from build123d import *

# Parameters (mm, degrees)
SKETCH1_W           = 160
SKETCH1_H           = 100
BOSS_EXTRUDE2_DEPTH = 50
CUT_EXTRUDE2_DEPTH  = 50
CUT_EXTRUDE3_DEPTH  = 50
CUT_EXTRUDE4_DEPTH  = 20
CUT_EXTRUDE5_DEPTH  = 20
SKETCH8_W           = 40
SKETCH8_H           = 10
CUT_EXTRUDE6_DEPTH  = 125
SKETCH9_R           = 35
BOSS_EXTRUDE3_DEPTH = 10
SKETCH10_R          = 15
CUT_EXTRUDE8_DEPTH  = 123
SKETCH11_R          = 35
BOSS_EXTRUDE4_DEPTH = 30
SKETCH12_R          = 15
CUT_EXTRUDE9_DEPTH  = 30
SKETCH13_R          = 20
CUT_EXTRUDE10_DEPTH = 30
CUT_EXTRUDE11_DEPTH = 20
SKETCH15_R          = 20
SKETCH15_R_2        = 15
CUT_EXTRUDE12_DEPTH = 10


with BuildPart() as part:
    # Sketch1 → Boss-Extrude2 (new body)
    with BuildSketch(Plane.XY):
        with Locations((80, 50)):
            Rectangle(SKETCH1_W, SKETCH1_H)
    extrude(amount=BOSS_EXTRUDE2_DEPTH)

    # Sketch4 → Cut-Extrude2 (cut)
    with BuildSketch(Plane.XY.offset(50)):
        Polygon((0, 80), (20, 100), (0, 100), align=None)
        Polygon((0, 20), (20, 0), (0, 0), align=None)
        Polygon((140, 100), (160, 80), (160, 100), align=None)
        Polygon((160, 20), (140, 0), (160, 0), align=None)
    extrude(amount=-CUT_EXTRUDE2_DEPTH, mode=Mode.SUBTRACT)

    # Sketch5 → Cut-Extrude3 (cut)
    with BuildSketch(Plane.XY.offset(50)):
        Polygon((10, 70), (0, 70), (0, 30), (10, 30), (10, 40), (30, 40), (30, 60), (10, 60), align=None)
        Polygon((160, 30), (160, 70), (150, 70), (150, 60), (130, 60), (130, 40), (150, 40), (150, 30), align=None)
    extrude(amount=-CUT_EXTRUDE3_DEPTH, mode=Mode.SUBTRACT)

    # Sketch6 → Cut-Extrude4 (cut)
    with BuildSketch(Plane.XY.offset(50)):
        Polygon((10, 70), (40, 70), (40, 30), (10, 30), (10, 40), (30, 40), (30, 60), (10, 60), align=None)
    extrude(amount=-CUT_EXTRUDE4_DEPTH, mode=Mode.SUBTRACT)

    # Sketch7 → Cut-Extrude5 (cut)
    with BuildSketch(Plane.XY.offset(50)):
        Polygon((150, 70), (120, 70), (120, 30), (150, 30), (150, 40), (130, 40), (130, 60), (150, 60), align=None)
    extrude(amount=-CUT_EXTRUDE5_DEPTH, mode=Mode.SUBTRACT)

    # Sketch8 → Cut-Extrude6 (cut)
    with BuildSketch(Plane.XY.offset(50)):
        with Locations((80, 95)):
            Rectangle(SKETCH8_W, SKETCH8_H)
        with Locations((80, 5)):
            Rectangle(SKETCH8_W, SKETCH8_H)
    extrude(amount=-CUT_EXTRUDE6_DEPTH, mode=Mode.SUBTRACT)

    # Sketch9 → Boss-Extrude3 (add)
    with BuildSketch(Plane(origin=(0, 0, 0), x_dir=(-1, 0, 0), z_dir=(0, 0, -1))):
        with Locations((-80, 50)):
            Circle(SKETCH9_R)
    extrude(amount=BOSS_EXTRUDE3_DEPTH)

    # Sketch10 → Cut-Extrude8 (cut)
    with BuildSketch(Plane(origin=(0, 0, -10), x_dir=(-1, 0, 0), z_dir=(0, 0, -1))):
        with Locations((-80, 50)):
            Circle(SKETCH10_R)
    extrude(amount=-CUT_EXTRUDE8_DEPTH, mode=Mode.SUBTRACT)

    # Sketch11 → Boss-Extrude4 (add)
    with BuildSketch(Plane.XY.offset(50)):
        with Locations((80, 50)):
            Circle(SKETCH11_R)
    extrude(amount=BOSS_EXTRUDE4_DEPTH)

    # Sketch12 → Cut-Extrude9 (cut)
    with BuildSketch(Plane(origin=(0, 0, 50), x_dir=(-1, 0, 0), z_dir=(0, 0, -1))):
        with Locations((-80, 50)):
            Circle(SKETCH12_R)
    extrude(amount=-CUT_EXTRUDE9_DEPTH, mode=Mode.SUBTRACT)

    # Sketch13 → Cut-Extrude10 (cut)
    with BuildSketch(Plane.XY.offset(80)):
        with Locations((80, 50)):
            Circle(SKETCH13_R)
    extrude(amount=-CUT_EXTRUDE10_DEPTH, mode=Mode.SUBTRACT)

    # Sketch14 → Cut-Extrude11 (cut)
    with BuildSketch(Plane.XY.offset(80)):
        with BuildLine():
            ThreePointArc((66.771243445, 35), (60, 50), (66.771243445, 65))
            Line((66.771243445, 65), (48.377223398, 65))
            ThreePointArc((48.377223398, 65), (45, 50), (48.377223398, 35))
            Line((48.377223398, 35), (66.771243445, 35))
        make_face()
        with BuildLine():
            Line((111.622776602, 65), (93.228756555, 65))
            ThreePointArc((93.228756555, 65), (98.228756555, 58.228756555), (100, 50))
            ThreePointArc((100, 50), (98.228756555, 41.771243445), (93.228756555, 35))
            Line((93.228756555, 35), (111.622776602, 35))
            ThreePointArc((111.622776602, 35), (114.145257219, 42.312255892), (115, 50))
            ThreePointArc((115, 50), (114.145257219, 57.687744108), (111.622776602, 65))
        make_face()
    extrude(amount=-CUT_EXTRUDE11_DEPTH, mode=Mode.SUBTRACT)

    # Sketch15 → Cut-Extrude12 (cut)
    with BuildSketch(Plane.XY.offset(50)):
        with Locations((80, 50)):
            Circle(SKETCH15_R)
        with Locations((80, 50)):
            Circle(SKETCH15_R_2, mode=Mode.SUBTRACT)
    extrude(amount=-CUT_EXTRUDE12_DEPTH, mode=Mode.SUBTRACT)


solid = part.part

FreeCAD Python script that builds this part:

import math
import FreeCAD as App
import Part
import Sketcher

V = App.Vector


def add_polygon(sketch, points):
    """Adds a closed chain of lines whose ends are joined by coincident constraints."""
    first, n = sketch.GeometryCount, len(points)
    for a, b in zip(points, points[1:] + points[:1]):
        sketch.addGeometry(Part.LineSegment(App.Vector(*a, 0), App.Vector(*b, 0)), False)
    for i in range(n):
        sketch.addConstraint(Sketcher.Constraint("Coincident", first + i, 2, first + (i + 1) % n, 1))

doc = App.newDocument("Part")
body = doc.addObject("PartDesign::Body", "Body")

sketch1 = body.newObject("Sketcher::SketchObject", "Sketch")
sketch1.AttachmentSupport = (doc.getObject("XY_Plane"), [""])
sketch1.MapMode = "FlatFace"
add_polygon(sketch1, [(0, 100), (0, 0), (160, 0), (160, 100)])
sketch1.addConstraint(Sketcher.Constraint("Vertical", 0))
sketch1.addConstraint(Sketcher.Constraint("Horizontal", 1))
sketch1.addConstraint(Sketcher.Constraint("Vertical", 2))
sketch1.addConstraint(Sketcher.Constraint("Horizontal", 3))
sketch1.addConstraint(Sketcher.Constraint("Coincident", 0, 2, -1, 1))
sketch1.addConstraint(Sketcher.Constraint("DistanceX", 1, 1, 1, 2, 160.0))
sketch1.addConstraint(Sketcher.Constraint("DistanceY", 0, 2, 0, 1, 100.0))
pad1 = body.newObject("PartDesign::Pad", "Pad")
pad1.Profile = sketch1
pad1.Length = 50

sketch2 = body.newObject("Sketcher::SketchObject", "Sketch001")
sketch2.AttachmentSupport = (doc.getObject("XY_Plane"), [""])
sketch2.MapMode = "FlatFace"
sketch2.AttachmentOffset = App.Placement(V(0, 0, 50), App.Rotation())
add_polygon(sketch2, [(0, 80), (20, 100), (0, 100)])
add_polygon(sketch2, [(20, 0), (0, 20), (0, 0)])
add_polygon(sketch2, [(140, 100), (160, 80), (160, 100)])
add_polygon(sketch2, [(160, 20), (140, 0), (160, 0)])
sketch2.addConstraint(Sketcher.Constraint("Horizontal", 1))
sketch2.addConstraint(Sketcher.Constraint("Vertical", 2))
sketch2.addConstraint(Sketcher.Constraint("Vertical", 4))
sketch2.addConstraint(Sketcher.Constraint("Horizontal", 5))
sketch2.addConstraint(Sketcher.Constraint("Vertical", 7))
sketch2.addConstraint(Sketcher.Constraint("Horizontal", 8))
sketch2.addConstraint(Sketcher.Constraint("Horizontal", 10))
sketch2.addConstraint(Sketcher.Constraint("Vertical", 11))
sketch2.addConstraint(Sketcher.Constraint("Coincident", 4, 2, -1, 1))
sketch2.addConstraint(Sketcher.Constraint("PointOnObject", 1, 2, -2))
sketch2.addConstraint(Sketcher.Constraint("PointOnObject", 9, 2, -1))
sketch2.addConstraint(Sketcher.Constraint("Perpendicular", 0, 3))
sketch2.addConstraint(Sketcher.Constraint("Parallel", 3, 6))
sketch2.addConstraint(Sketcher.Constraint("Perpendicular", 6, 9))
sketch2.addConstraint(Sketcher.Constraint("Horizontal", 2, 2, 6, 2))
sketch2.addConstraint(Sketcher.Constraint("Horizontal", 1, 2, 7, 2))
sketch2.addConstraint(Sketcher.Constraint("Horizontal", 3, 2, 11, 2))
sketch2.addConstraint(Sketcher.Constraint("Vertical", 0, 2, 5, 2))
sketch2.addConstraint(Sketcher.Constraint("Vertical", 8, 2, 9, 2))
sketch2.addConstraint(Sketcher.Constraint("Vertical", 7, 2, 10, 2))
sketch2.addConstraint(Sketcher.Constraint("DistanceX", 1, 2, 1, 1, 20.0))
sketch2.addConstraint(Sketcher.Constraint("DistanceY", -1, 1, 0, 2, 100.0))
sketch2.addConstraint(Sketcher.Constraint("DistanceX", -1, 1, 6, 2, 160.0))
pocket1 = body.newObject("PartDesign::Pocket", "Pocket")
pocket1.Profile = sketch2
pocket1.Length = 50

sketch3 = body.newObject("Sketcher::SketchObject", "Sketch002")
sketch3.AttachmentSupport = (doc.getObject("XY_Plane"), [""])
sketch3.MapMode = "FlatFace"
sketch3.AttachmentOffset = App.Placement(V(0, 0, 50), App.Rotation())
add_polygon(sketch3, [(10, 70), (0, 70), (0, 30), (10, 30), (10, 40), (30, 40), (30, 60), (10, 60)])
add_polygon(sketch3, [(160, 30), (160, 70), (150, 70), (150, 60), (130, 60), (130, 40), (150, 40), (150, 30)])
sketch3.addConstraint(Sketcher.Constraint("Horizontal", 0))
sketch3.addConstraint(Sketcher.Constraint("Vertical", 1))
sketch3.addConstraint(Sketcher.Constraint("Horizontal", 2))
sketch3.addConstraint(Sketcher.Constraint("Vertical", 3))
sketch3.addConstraint(Sketcher.Constraint("Horizontal", 4))
sketch3.addConstraint(Sketcher.Constraint("Vertical", 5))
sketch3.addConstraint(Sketcher.Constraint("Horizontal", 6))
sketch3.addConstraint(Sketcher.Constraint("Vertical", 7))
sketch3.addConstraint(Sketcher.Constraint("Vertical", 8))
sketch3.addConstraint(Sketcher.Constraint("Horizontal", 9))
sketch3.addConstraint(Sketcher.Constraint("Vertical", 10))
sketch3.addConstraint(Sketcher.Constraint("Horizontal", 11))
sketch3.addConstraint(Sketcher.Constraint("Vertical", 12))
sketch3.addConstraint(Sketcher.Constraint("Horizontal", 13))
sketch3.addConstraint(Sketcher.Constraint("Vertical", 14))
sketch3.addConstraint(Sketcher.Constraint("Horizontal", 15))
sketch3.addConstraint(Sketcher.Constraint("PointOnObject", 0, 2, -2))
sketch3.addConstraint(Sketcher.Constraint("Horizontal", 7, 2, 8, 2))
sketch3.addConstraint(Sketcher.Constraint("Horizontal", 6, 2, 10, 2))
sketch3.addConstraint(Sketcher.Constraint("Horizontal", 4, 2, 12, 2))
sketch3.addConstraint(Sketcher.Constraint("Horizontal", 2, 2, 14, 2))
sketch3.addConstraint(Sketcher.Constraint("Vertical", 3, 2, 6, 2))
sketch3.addConstraint(Sketcher.Constraint("Vertical", 10, 2, 13, 2))
sketch3.addConstraint(Sketcher.Constraint("Equal", 2, 9))
sketch3.addConstraint(Sketcher.Constraint("Equal", 6, 11))
sketch3.addConstraint(Sketcher.Constraint("Equal", 15, 3))
sketch3.addConstraint(Sketcher.Constraint("Equal", 13, 5))
sketch3.addConstraint(Sketcher.Constraint("Equal", 3, 7))
sketch3.addConstraint(Sketcher.Constraint("DistanceX", 0, 2, 0, 1, 10.0))
sketch3.addConstraint(Sketcher.Constraint("DistanceX", 4, 1, 4, 2, 20.0))
sketch3.addConstraint(Sketcher.Constraint("DistanceY", -1, 1, 0, 2, 70.0))
sketch3.addConstraint(Sketcher.Constraint("DistanceX", -1, 1, 8, 2, 160.0))
pocket2 = body.newObject("PartDesign::Pocket", "Pocket001")
pocket2.Profile = sketch3
pocket2.Length = 50

sketch4 = body.newObject("Sketcher::SketchObject", "Sketch003")
sketch4.AttachmentSupport = (doc.getObject("XY_Plane"), [""])
sketch4.MapMode = "FlatFace"
sketch4.AttachmentOffset = App.Placement(V(0, 0, 50), App.Rotation())
add_polygon(sketch4, [(40, 70), (10, 70), (10, 60), (30, 60), (30, 40), (10, 40), (10, 30), (40, 30)])
sketch4.addConstraint(Sketcher.Constraint("Horizontal", 0))
sketch4.addConstraint(Sketcher.Constraint("Vertical", 1))
sketch4.addConstraint(Sketcher.Constraint("Horizontal", 2))
sketch4.addConstraint(Sketcher.Constraint("Vertical", 3))
sketch4.addConstraint(Sketcher.Constraint("Horizontal", 4))
sketch4.addConstraint(Sketcher.Constraint("Vertical", 5))
sketch4.addConstraint(Sketcher.Constraint("Horizontal", 6))
sketch4.addConstraint(Sketcher.Constraint("Vertical", 7))
sketch4.addConstraint(Sketcher.Constraint("Vertical", 1, 2, 4, 2))
sketch4.addConstraint(Sketcher.Constraint("Equal", 4, 3))
sketch4.addConstraint(Sketcher.Constraint("Equal", 1, 5))
sketch4.addConstraint(Sketcher.Constraint("DistanceX", 0, 2, 0, 1, 30.0))
sketch4.addConstraint(Sketcher.Constraint("DistanceX", 2, 1, 2, 2, 20.0))
sketch4.addConstraint(Sketcher.Constraint("DistanceY", 1, 2, 1, 1, 10.0))
sketch4.addConstraint(Sketcher.Constraint("DistanceX", -1, 1, 0, 2, 10.0))
sketch4.addConstraint(Sketcher.Constraint("DistanceY", -1, 1, 0, 2, 70.0))
pocket3 = body.newObject("PartDesign::Pocket", "Pocket002")
pocket3.Profile = sketch4
pocket3.Length = 20

sketch5 = body.newObject("Sketcher::SketchObject", "Sketch004")
sketch5.AttachmentSupport = (doc.getObject("XY_Plane"), [""])
sketch5.MapMode = "FlatFace"
sketch5.AttachmentOffset = App.Placement(V(0, 0, 50), App.Rotation())
add_polygon(sketch5, [(150, 70), (120, 70), (120, 30), (150, 30), (150, 40), (130, 40), (130, 60), (150, 60)])
sketch5.addConstraint(Sketcher.Constraint("Horizontal", 0))
sketch5.addConstraint(Sketcher.Constraint("Vertical", 1))
sketch5.addConstraint(Sketcher.Constraint("Horizontal", 2))
sketch5.addConstraint(Sketcher.Constraint("Vertical", 3))
sketch5.addConstraint(Sketcher.Constraint("Horizontal", 4))
sketch5.addConstraint(Sketcher.Constraint("Vertical", 5))
sketch5.addConstraint(Sketcher.Constraint("Horizontal", 6))
sketch5.addConstraint(Sketcher.Constraint("Vertical", 7))
sketch5.addConstraint(Sketcher.Constraint("Vertical", 3, 2, 6, 2))
sketch5.addConstraint(Sketcher.Constraint("Equal", 6, 5))
sketch5.addConstraint(Sketcher.Constraint("Equal", 3, 7))
sketch5.addConstraint(Sketcher.Constraint("DistanceX", 0, 2, 0, 1, 30.0))
sketch5.addConstraint(Sketcher.Constraint("DistanceX", 4, 2, 4, 1, 20.0))
sketch5.addConstraint(Sketcher.Constraint("DistanceY", 1, 2, 1, 1, 40.0))
sketch5.addConstraint(Sketcher.Constraint("DistanceX", -1, 1, 0, 2, 120.0))
sketch5.addConstraint(Sketcher.Constraint("DistanceY", -1, 1, 0, 2, 70.0))
pocket4 = body.newObject("PartDesign::Pocket", "Pocket003")
pocket4.Profile = sketch5
pocket4.Length = 20

sketch6 = body.newObject("Sketcher::SketchObject", "Sketch005")
sketch6.AttachmentSupport = (doc.getObject("XY_Plane"), [""])
sketch6.MapMode = "FlatFace"
sketch6.AttachmentOffset = App.Placement(V(0, 0, 50), App.Rotation())
add_polygon(sketch6, [(60, 100), (60, 90), (100, 90), (100, 100)])
add_polygon(sketch6, [(60, 10), (60, 0), (100, 0), (100, 10)])
sketch6.addConstraint(Sketcher.Constraint("Vertical", 0))
sketch6.addConstraint(Sketcher.Constraint("Horizontal", 1))
sketch6.addConstraint(Sketcher.Constraint("Vertical", 2))
sketch6.addConstraint(Sketcher.Constraint("Horizontal", 3))
sketch6.addConstraint(Sketcher.Constraint("Vertical", 4))
sketch6.addConstraint(Sketcher.Constraint("Horizontal", 5))
sketch6.addConstraint(Sketcher.Constraint("Vertical", 6))
sketch6.addConstraint(Sketcher.Constraint("Horizontal", 7))
sketch6.addConstraint(Sketcher.Constraint("PointOnObject", 4, 2, -1))
sketch6.addConstraint(Sketcher.Constraint("Vertical", 3, 2, 4, 2))
sketch6.addConstraint(Sketcher.Constraint("Vertical", 2, 2, 5, 2))
sketch6.addConstraint(Sketcher.Constraint("Equal", 2, 4))
sketch6.addConstraint(Sketcher.Constraint("DistanceX", 1, 1, 1, 2, 40.0))
sketch6.addConstraint(Sketcher.Constraint("DistanceY", 0, 2, 0, 1, 10.0))
sketch6.addConstraint(Sketcher.Constraint("DistanceX", -1, 1, 0, 2, 60.0))
sketch6.addConstraint(Sketcher.Constraint("DistanceY", -1, 1, 0, 2, 90.0))
pocket5 = body.newObject("PartDesign::Pocket", "Pocket004")
pocket5.Profile = sketch6
pocket5.Length = 125

sketch7 = body.newObject("Sketcher::SketchObject", "Sketch006")
sketch7.AttachmentSupport = (doc.getObject("XY_Plane"), [""])
sketch7.MapMode = "FlatFace"
sketch7.addGeometry(Part.Circle(V(80, 50, 0), V(0, 0, 1), 35), False)
sketch7.addConstraint(Sketcher.Constraint("Diameter", 0, 70.0))
sketch7.addConstraint(Sketcher.Constraint("DistanceX", -1, 1, 0, 3, 80.0))
sketch7.addConstraint(Sketcher.Constraint("DistanceY", -1, 1, 0, 3, 50.0))
pad2 = body.newObject("PartDesign::Pad", "Pad001")
pad2.Profile = sketch7
pad2.Length = 10
pad2.Reversed = True

sketch8 = body.newObject("Sketcher::SketchObject", "Sketch007")
sketch8.AttachmentSupport = (doc.getObject("XY_Plane"), [""])
sketch8.MapMode = "FlatFace"
sketch8.AttachmentOffset = App.Placement(V(0, 0, -10), App.Rotation())
sketch8.addGeometry(Part.Circle(V(80, 50, 0), V(0, 0, 1), 15), False)
sketch8.addConstraint(Sketcher.Constraint("Diameter", 0, 30.0))
sketch8.addConstraint(Sketcher.Constraint("DistanceX", -1, 1, 0, 3, 80.0))
sketch8.addConstraint(Sketcher.Constraint("DistanceY", -1, 1, 0, 3, 50.0))
pocket6 = body.newObject("PartDesign::Pocket", "Pocket005")
pocket6.Profile = sketch8
pocket6.Length = 123
pocket6.Reversed = True

sketch9 = body.newObject("Sketcher::SketchObject", "Sketch008")
sketch9.AttachmentSupport = (doc.getObject("XY_Plane"), [""])
sketch9.MapMode = "FlatFace"
sketch9.AttachmentOffset = App.Placement(V(0, 0, 50), App.Rotation())
sketch9.addGeometry(Part.Circle(V(80, 50, 0), V(0, 0, 1), 35), False)
sketch9.addConstraint(Sketcher.Constraint("Diameter", 0, 70.0))
sketch9.addConstraint(Sketcher.Constraint("DistanceX", -1, 1, 0, 3, 80.0))
sketch9.addConstraint(Sketcher.Constraint("DistanceY", -1, 1, 0, 3, 50.0))
pad3 = body.newObject("PartDesign::Pad", "Pad002")
pad3.Profile = sketch9
pad3.Length = 30

sketch10 = body.newObject("Sketcher::SketchObject", "Sketch009")
sketch10.AttachmentSupport = (doc.getObject("XY_Plane"), [""])
sketch10.MapMode = "FlatFace"
sketch10.AttachmentOffset = App.Placement(V(0, 0, 50), App.Rotation())
sketch10.addGeometry(Part.Circle(V(80, 50, 0), V(0, 0, 1), 15), False)
sketch10.addConstraint(Sketcher.Constraint("Diameter", 0, 30.0))
sketch10.addConstraint(Sketcher.Constraint("DistanceX", -1, 1, 0, 3, 80.0))
sketch10.addConstraint(Sketcher.Constraint("DistanceY", -1, 1, 0, 3, 50.0))
pocket7 = body.newObject("PartDesign::Pocket", "Pocket006")
pocket7.Profile = sketch10
pocket7.Length = 30
pocket7.Reversed = True

sketch11 = body.newObject("Sketcher::SketchObject", "Sketch010")
sketch11.AttachmentSupport = (doc.getObject("XY_Plane"), [""])
sketch11.MapMode = "FlatFace"
sketch11.AttachmentOffset = App.Placement(V(0, 0, 80), App.Rotation())
sketch11.addGeometry(Part.Circle(V(80, 50, 0), V(0, 0, 1), 20), False)
sketch11.addConstraint(Sketcher.Constraint("Diameter", 0, 40.0))
sketch11.addConstraint(Sketcher.Constraint("DistanceX", -1, 1, 0, 3, 80.0))
sketch11.addConstraint(Sketcher.Constraint("DistanceY", -1, 1, 0, 3, 50.0))
pocket8 = body.newObject("PartDesign::Pocket", "Pocket007")
pocket8.Profile = sketch11
pocket8.Length = 30

sketch12 = body.newObject("Sketcher::SketchObject", "Sketch011")
sketch12.AttachmentSupport = (doc.getObject("XY_Plane"), [""])
sketch12.MapMode = "FlatFace"
sketch12.AttachmentOffset = App.Placement(V(0, 0, 80), App.Rotation())
sketch12.addGeometry(Part.ArcOfCircle(Part.Circle(V(80, 50, 0), V(0, 0, 1), 20), math.radians(131), math.radians(229)), False)
sketch12.addGeometry(Part.LineSegment(V(67, 65, 0), V(48, 65, 0)), False)
sketch12.addGeometry(Part.ArcOfCircle(Part.Circle(V(80, 50, 0), V(0, 0, 1), 35), math.radians(155), math.radians(205)), False)
sketch12.addGeometry(Part.LineSegment(V(48, 35, 0), V(67, 35, 0)), False)
sketch12.addGeometry(Part.LineSegment(V(112, 65, 0), V(93, 65, 0)), False)
sketch12.addGeometry(Part.ArcOfCircle(Part.Circle(V(80, 50, 0), V(0, 0, 1), 20), math.radians(0), math.radians(49)), False)
sketch12.addGeometry(Part.ArcOfCircle(Part.Circle(V(80, 50, 0), V(0, 0, 1), 20), math.radians(-49), math.radians(0)), False)
sketch12.addGeometry(Part.LineSegment(V(93, 35, 0), V(112, 35, 0)), False)
sketch12.addGeometry(Part.ArcOfCircle(Part.Circle(V(80, 50, 0), V(0, 0, 1), 35), math.radians(-25), math.radians(0)), False)
sketch12.addGeometry(Part.ArcOfCircle(Part.Circle(V(80, 50, 0), V(0, 0, 1), 35), math.radians(0), math.radians(25)), False)
sketch12.addConstraint(Sketcher.Constraint("Coincident", 0, 1, 1, 1))
sketch12.addConstraint(Sketcher.Constraint("Coincident", 1, 2, 2, 1))
sketch12.addConstraint(Sketcher.Constraint("Coincident", 2, 2, 3, 1))
sketch12.addConstraint(Sketcher.Constraint("Coincident", 3, 2, 0, 2))
sketch12.addConstraint(Sketcher.Constraint("Coincident", 4, 2, 5, 2))
sketch12.addConstraint(Sketcher.Constraint("Tangent", 5, 1, 6, 2))
sketch12.addConstraint(Sketcher.Constraint("Coincident", 6, 1, 7, 1))
sketch12.addConstraint(Sketcher.Constraint("Coincident", 7, 2, 8, 1))
sketch12.addConstraint(Sketcher.Constraint("Tangent", 8, 2, 9, 1))
sketch12.addConstraint(Sketcher.Constraint("Coincident", 9, 2, 4, 1))
sketch12.addConstraint(Sketcher.Constraint("Horizontal", 1))
sketch12.addConstraint(Sketcher.Constraint("Horizontal", 3))
sketch12.addConstraint(Sketcher.Constraint("Horizontal", 4))
sketch12.addConstraint(Sketcher.Constraint("Horizontal", 7))
sketch12.addConstraint(Sketcher.Constraint("Coincident", 2, 3, 0, 3))
sketch12.addConstraint(Sketcher.Constraint("Coincident", 5, 3, 0, 3))
sketch12.addConstraint(Sketcher.Constraint("Coincident", 8, 3, 0, 3))
sketch12.addConstraint(Sketcher.Constraint("Equal", 0, 5))
sketch12.addConstraint(Sketcher.Constraint("Equal", 5, 6))
sketch12.addConstraint(Sketcher.Constraint("Equal", 2, 8))
sketch12.addConstraint(Sketcher.Constraint("Equal", 8, 9))
sketch12.addConstraint(Sketcher.Constraint("Horizontal", 1, 2, 4, 2))
sketch12.addConstraint(Sketcher.Constraint("Horizontal", 9, 3, 5, 1))
sketch12.addConstraint(Sketcher.Constraint("Horizontal", 3, 2, 6, 1))
sketch12.addConstraint(Sketcher.Constraint("Horizontal", 5, 1, 8, 2))
sketch12.addConstraint(Sketcher.Constraint("Vertical", 1, 2, 2, 2))
sketch12.addConstraint(Sketcher.Constraint("Radius", 0, 20.0))
sketch12.addConstraint(Sketcher.Constraint("Radius", 2, 35.0))
sketch12.addConstraint(Sketcher.Constraint("DistanceX", -1, 1, 0, 3, 80.0))
sketch12.addConstraint(Sketcher.Constraint("DistanceY", -1, 1, 0, 3, 50.0))
sketch12.addConstraint(Sketcher.Constraint("DistanceY", -1, 1, 0, 1, 65.0))
pocket9 = body.newObject("PartDesign::Pocket", "Pocket008")
pocket9.Profile = sketch12
pocket9.Length = 20

sketch13 = body.newObject("Sketcher::SketchObject", "Sketch012")
sketch13.AttachmentSupport = (doc.getObject("XY_Plane"), [""])
sketch13.MapMode = "FlatFace"
sketch13.AttachmentOffset = App.Placement(V(0, 0, 50), App.Rotation())
sketch13.addGeometry(Part.Circle(V(80, 50, 0), V(0, 0, 1), 20), False)
sketch13.addGeometry(Part.Circle(V(80, 50, 0), V(0, 0, 1), 15), False)
sketch13.addConstraint(Sketcher.Constraint("Coincident", 1, 3, 0, 3))
sketch13.addConstraint(Sketcher.Constraint("Diameter", 0, 40.0))
sketch13.addConstraint(Sketcher.Constraint("Diameter", 1, 30.0))
sketch13.addConstraint(Sketcher.Constraint("DistanceX", -1, 1, 0, 3, 80.0))
sketch13.addConstraint(Sketcher.Constraint("DistanceY", -1, 1, 0, 3, 50.0))
pocket10 = body.newObject("PartDesign::Pocket", "Pocket009")
pocket10.Profile = sketch13
pocket10.Length = 10

doc.recompute()
